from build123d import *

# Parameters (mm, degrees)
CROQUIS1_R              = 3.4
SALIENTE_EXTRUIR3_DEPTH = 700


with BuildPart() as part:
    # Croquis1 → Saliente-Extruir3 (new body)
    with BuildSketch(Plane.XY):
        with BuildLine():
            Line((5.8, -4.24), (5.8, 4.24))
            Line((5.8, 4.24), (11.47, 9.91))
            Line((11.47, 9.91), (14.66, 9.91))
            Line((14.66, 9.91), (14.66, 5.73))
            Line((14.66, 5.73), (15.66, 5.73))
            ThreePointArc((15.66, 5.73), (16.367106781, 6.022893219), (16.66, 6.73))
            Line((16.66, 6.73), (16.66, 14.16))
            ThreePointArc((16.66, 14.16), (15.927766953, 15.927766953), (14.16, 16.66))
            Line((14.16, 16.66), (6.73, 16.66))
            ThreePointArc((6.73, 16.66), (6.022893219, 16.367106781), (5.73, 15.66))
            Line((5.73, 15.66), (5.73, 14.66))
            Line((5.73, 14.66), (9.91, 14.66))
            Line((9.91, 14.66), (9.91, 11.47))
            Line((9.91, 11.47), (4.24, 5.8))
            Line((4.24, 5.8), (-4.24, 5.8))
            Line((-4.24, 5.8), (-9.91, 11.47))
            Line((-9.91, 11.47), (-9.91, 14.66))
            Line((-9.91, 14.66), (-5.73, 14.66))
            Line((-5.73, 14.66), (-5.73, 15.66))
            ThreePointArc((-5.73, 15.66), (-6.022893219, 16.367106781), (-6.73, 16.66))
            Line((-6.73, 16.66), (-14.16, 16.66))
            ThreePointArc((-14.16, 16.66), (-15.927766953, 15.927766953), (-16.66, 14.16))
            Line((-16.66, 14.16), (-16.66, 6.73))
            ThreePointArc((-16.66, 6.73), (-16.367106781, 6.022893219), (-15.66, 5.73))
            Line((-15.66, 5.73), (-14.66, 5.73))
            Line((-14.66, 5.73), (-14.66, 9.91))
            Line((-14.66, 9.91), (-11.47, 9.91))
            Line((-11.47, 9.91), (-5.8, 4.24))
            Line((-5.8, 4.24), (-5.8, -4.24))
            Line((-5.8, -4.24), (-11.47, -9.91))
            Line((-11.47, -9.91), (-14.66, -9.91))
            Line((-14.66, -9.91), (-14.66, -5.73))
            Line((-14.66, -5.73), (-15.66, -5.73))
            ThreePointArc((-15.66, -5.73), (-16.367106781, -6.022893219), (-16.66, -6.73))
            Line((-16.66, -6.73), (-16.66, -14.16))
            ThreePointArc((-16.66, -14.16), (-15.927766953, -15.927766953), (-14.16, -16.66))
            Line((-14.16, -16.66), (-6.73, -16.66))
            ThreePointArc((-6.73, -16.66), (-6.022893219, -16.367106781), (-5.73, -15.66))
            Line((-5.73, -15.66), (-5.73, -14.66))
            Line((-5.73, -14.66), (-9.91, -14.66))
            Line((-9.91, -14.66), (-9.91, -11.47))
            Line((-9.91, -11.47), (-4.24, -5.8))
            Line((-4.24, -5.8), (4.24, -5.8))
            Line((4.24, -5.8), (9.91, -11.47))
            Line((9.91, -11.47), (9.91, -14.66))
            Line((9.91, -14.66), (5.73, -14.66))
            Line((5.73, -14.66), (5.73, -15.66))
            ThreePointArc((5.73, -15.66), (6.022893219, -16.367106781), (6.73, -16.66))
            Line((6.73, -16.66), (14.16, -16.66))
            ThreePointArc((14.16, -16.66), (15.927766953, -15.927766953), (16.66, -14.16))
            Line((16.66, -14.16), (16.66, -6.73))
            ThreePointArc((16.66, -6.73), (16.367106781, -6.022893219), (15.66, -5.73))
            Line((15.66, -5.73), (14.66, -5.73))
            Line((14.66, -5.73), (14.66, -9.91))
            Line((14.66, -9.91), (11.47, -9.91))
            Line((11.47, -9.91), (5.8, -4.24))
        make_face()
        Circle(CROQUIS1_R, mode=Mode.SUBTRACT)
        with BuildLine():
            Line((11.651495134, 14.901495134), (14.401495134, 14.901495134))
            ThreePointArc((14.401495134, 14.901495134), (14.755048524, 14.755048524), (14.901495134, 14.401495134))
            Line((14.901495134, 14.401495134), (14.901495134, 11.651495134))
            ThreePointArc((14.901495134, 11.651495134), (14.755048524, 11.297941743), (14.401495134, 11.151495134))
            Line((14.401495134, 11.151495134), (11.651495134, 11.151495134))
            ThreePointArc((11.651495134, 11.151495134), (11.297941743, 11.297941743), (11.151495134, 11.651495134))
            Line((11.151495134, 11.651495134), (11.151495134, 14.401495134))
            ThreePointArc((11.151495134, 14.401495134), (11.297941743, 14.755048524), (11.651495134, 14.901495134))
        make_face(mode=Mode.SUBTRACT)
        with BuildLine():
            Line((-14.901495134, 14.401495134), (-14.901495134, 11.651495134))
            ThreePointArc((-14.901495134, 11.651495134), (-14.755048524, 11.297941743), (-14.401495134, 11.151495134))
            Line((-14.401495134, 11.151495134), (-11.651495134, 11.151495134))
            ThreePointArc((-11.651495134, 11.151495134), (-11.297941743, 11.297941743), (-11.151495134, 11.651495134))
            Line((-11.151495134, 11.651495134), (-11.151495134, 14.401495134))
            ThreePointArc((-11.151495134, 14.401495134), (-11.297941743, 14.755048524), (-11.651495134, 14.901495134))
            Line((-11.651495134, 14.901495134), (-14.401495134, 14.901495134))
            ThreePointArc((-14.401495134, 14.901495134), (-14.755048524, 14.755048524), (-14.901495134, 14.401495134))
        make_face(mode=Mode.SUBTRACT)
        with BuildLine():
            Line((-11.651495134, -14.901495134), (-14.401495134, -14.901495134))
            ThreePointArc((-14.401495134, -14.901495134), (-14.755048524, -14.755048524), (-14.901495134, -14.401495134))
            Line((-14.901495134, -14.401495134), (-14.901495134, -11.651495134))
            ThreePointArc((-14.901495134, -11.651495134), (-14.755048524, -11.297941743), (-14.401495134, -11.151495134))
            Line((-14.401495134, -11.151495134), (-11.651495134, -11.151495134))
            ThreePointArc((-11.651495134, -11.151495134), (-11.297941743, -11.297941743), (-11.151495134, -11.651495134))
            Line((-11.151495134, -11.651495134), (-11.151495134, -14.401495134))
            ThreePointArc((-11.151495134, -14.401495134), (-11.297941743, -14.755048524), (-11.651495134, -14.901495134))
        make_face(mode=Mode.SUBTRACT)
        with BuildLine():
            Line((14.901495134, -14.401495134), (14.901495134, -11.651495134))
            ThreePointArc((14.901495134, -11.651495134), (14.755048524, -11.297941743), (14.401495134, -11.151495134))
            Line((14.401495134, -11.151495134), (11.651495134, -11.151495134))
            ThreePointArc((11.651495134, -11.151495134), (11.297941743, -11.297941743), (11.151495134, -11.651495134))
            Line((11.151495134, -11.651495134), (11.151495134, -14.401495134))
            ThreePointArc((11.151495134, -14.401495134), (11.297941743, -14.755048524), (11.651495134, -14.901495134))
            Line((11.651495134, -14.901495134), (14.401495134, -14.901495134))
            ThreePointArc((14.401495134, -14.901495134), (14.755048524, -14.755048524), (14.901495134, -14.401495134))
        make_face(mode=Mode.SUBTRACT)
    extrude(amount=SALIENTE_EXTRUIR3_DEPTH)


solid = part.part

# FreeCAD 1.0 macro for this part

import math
import FreeCAD as App
import Part
import Sketcher
Q = App.Units.Quantity

doc = App.newDocument("Part")
params = doc.addObject("Spreadsheet::Sheet", "Params")
for row, (alias, value) in enumerate([
    ("sketch1_radius", "1 mm"),
    ("sketch1_diameter", "6.8 mm"),
    ("sketch1_radius2", "2.5 mm"),
    ("sketch1_radius3", "0.5 mm"),
    ("sketch1_width", "1 mm"),
    ("pad1_length", "700 mm"),
], start=1):
    params.set(f"A{row}", alias)
    params.set(f"B{row}", "=" + value)
    params.setAlias(f"B{row}", alias)

body = doc.addObject("PartDesign::Body", "Body")

# Sketch on XY plane
sketch1 = body.newObject("Sketcher::SketchObject", "Sketch")
sketch1.AttachmentSupport = (doc.getObject("XY_Plane"), [""])
sketch1.MapMode = "FlatFace"
sketch1.addGeometry([
    Part.LineSegment(App.Vector(5.8, -4.24, 0), App.Vector(5.8, 4.24, 0)),  # 0
    Part.LineSegment(App.Vector(5.8, 4.24, 0), App.Vector(11.47, 9.91, 0)),  # 1
    Part.LineSegment(App.Vector(11.47, 9.91, 0), App.Vector(14.66, 9.91, 0)),  # 2
    Part.LineSegment(App.Vector(14.66, 9.91, 0), App.Vector(14.66, 5.73, 0)),  # 3
    Part.LineSegment(App.Vector(14.66, 5.73, 0), App.Vector(15.66, 5.73, 0)),  # 4
    Part.ArcOfCircle(Part.Circle(App.Vector(15.66, 6.73, 0), App.Vector(0, 0, 1), 1), math.radians(-90), math.radians(0)),  # 5
    Part.LineSegment(App.Vector(16.66, 6.73, 0), App.Vector(16.66, 14.16, 0)),  # 6
    Part.ArcOfCircle(Part.Circle(App.Vector(14.16, 14.16, 0), App.Vector(0, 0, 1), 2.5), math.radians(0), math.radians(90)),  # 7
    Part.LineSegment(App.Vector(14.16, 16.66, 0), App.Vector(6.73, 16.66, 0)),  # 8
    Part.ArcOfCircle(Part.Circle(App.Vector(6.73, 15.66, 0), App.Vector(0, 0, 1), 1), math.radians(90), math.radians(180)),  # 9
    Part.LineSegment(App.Vector(5.73, 15.66, 0), App.Vector(5.73, 14.66, 0)),  # 10
    Part.LineSegment(App.Vector(5.73, 14.66, 0), App.Vector(9.91, 14.66, 0)),  # 11
    Part.LineSegment(App.Vector(9.91, 14.66, 0), App.Vector(9.91, 11.47, 0)),  # 12
    Part.LineSegment(App.Vector(9.91, 11.47, 0), App.Vector(4.24, 5.8, 0)),  # 13
    Part.LineSegment(App.Vector(4.24, 5.8, 0), App.Vector(-4.24, 5.8, 0)),  # 14
    Part.LineSegment(App.Vector(-4.24, 5.8, 0), App.Vector(-9.91, 11.47, 0)),  # 15
    Part.LineSegment(App.Vector(-9.91, 11.47, 0), App.Vector(-9.91, 14.66, 0)),  # 16
    Part.LineSegment(App.Vector(-9.91, 14.66, 0), App.Vector(-5.73, 14.66, 0)),  # 17
    Part.LineSegment(App.Vector(-5.73, 14.66, 0), App.Vector(-5.73, 15.66, 0)),  # 18
    Part.ArcOfCircle(Part.Circle(App.Vector(-6.73, 15.66, 0), App.Vector(0, 0, 1), 1), math.radians(0), math.radians(90)),  # 19
    Part.LineSegment(App.Vector(-6.73, 16.66, 0), App.Vector(-14.16, 16.66, 0)),  # 20
    Part.ArcOfCircle(Part.Circle(App.Vector(-14.16, 14.16, 0), App.Vector(0, 0, 1), 2.5), math.radians(90), math.radians(180)),  # 21
    Part.LineSegment(App.Vector(-16.66, 14.16, 0), App.Vector(-16.66, 6.73, 0)),  # 22
    Part.ArcOfCircle(Part.Circle(App.Vector(-15.66, 6.73, 0), App.Vector(0, 0, 1), 1), math.radians(-180), math.radians(-90)),  # 23
    Part.LineSegment(App.Vector(-15.66, 5.73, 0), App.Vector(-14.66, 5.73, 0)),  # 24
    Part.LineSegment(App.Vector(-14.66, 5.73, 0), App.Vector(-14.66, 9.91, 0)),  # 25
    Part.LineSegment(App.Vector(-14.66, 9.91, 0), App.Vector(-11.47, 9.91, 0)),  # 26
    Part.LineSegment(App.Vector(-11.47, 9.91, 0), App.Vector(-5.8, 4.24, 0)),  # 27
    Part.LineSegment(App.Vector(-5.8, 4.24, 0), App.Vector(-5.8, -4.24, 0)),  # 28
    Part.LineSegment(App.Vector(-5.8, -4.24, 0), App.Vector(-11.47, -9.91, 0)),  # 29
    Part.LineSegment(App.Vector(-11.47, -9.91, 0), App.Vector(-14.66, -9.91, 0)),  # 30
    Part.LineSegment(App.Vector(-14.66, -9.91, 0), App.Vector(-14.66, -5.73, 0)),  # 31
    Part.LineSegment(App.Vector(-14.66, -5.73, 0), App.Vector(-15.66, -5.73, 0)),  # 32
    Part.ArcOfCircle(Part.Circle(App.Vector(-15.66, -6.73, 0), App.Vector(0, 0, 1), 1), math.radians(90), math.radians(180)),  # 33
    Part.LineSegment(App.Vector(-16.66, -6.73, 0), App.Vector(-16.66, -14.16, 0)),  # 34
    Part.ArcOfCircle(Part.Circle(App.Vector(-14.16, -14.16, 0), App.Vector(0, 0, 1), 2.5), math.radians(180), math.radians(270)),  # 35
    Part.LineSegment(App.Vector(-14.16, -16.66, 0), App.Vector(-6.73, -16.66, 0)),  # 36
    Part.ArcOfCircle(Part.Circle(App.Vector(-6.73, -15.66, 0), App.Vector(0, 0, 1), 1), math.radians(-90), math.radians(0)),  # 37
    Part.LineSegment(App.Vector(-5.73, -15.66, 0), App.Vector(-5.73, -14.66, 0)),  # 38
    Part.LineSegment(App.Vector(-5.73, -14.66, 0), App.Vector(-9.91, -14.66, 0)),  # 39
    Part.LineSegment(App.Vector(-9.91, -14.66, 0), App.Vector(-9.91, -11.47, 0)),  # 40
    Part.LineSegment(App.Vector(-9.91, -11.47, 0), App.Vector(-4.24, -5.8, 0)),  # 41
    Part.LineSegment(App.Vector(-4.24, -5.8, 0), App.Vector(4.24, -5.8, 0)),  # 42
    Part.LineSegment(App.Vector(4.24, -5.8, 0), App.Vector(9.91, -11.47, 0)),  # 43
    Part.LineSegment(App.Vector(9.91, -11.47, 0), App.Vector(9.91, -14.66, 0)),  # 44
    Part.LineSegment(App.Vector(9.91, -14.66, 0), App.Vector(5.73, -14.66, 0)),  # 45
    Part.LineSegment(App.Vector(5.73, -14.66, 0), App.Vector(5.73, -15.66, 0)),  # 46
    Part.ArcOfCircle(Part.Circle(App.Vector(6.73, -15.66, 0), App.Vector(0, 0, 1), 1), math.radians(-180), math.radians(-90)),  # 47
    Part.LineSegment(App.Vector(6.73, -16.66, 0), App.Vector(14.16, -16.66, 0)),  # 48
    Part.ArcOfCircle(Part.Circle(App.Vector(14.16, -14.16, 0), App.Vector(0, 0, 1), 2.5), math.radians(-90), math.radians(0)),  # 49
    Part.LineSegment(App.Vector(16.66, -14.16, 0), App.Vector(16.66, -6.73, 0)),  # 50
    Part.ArcOfCircle(Part.Circle(App.Vector(15.66, -6.73, 0), App.Vector(0, 0, 1), 1), math.radians(0), math.radians(90)),  # 51
    Part.LineSegment(App.Vector(15.66, -5.73, 0), App.Vector(14.66, -5.73, 0)),  # 52
    Part.LineSegment(App.Vector(14.66, -5.73, 0), App.Vector(14.66, -9.91, 0)),  # 53
    Part.LineSegment(App.Vector(14.66, -9.91, 0), App.Vector(11.47, -9.91, 0)),  # 54
    Part.LineSegment(App.Vector(11.47, -9.91, 0), App.Vector(5.8, -4.24, 0)),  # 55
    Part.ArcOfCircle(Part.Circle(App.Vector(-11.651495, -14.401495, 0), App.Vector(0, 0, 1), 0.5), math.radians(-90), math.radians(0)),  # 56
    Part.LineSegment(App.Vector(-11.651495, -14.901495, 0), App.Vector(-14.401495, -14.901495, 0)),  # 57
    Part.ArcOfCircle(Part.Circle(App.Vector(-14.401495, -14.401495, 0), App.Vector(0, 0, 1), 0.5), math.radians(-180), math.radians(-90)),  # 58
    Part.LineSegment(App.Vector(-14.901495, -14.401495, 0), App.Vector(-14.901495, -11.651495, 0)),  # 59
    Part.ArcOfCircle(Part.Circle(App.Vector(-14.401495, -11.651495, 0), App.Vector(0, 0, 1), 0.5), math.radians(90), math.radians(180)),  # 60
    Part.LineSegment(App.Vector(-14.401495, -11.151495, 0), App.Vector(-11.651495, -11.151495, 0)),  # 61
    Part.ArcOfCircle(Part.Circle(App.Vector(-11.651495, -11.651495, 0), App.Vector(0, 0, 1), 0.5), math.radians(0), math.radians(90)),  # 62
    Part.LineSegment(App.Vector(-11.151495, -11.651495, 0), App.Vector(-11.151495, -14.401495, 0)),  # 63
    Part.Circle(App.Vector(0, 0, 0), App.Vector(0, 0, 1), 3.4),  # 64
    Part.LineSegment(App.Vector(14.901495, -11.651495, 0), App.Vector(14.901495, -14.401495, 0)),  # 65
    Part.ArcOfCircle(Part.Circle(App.Vector(14.401495, -14.401495, 0), App.Vector(0, 0, 1), 0.5), math.radians(-90), math.radians(0)),  # 66
    Part.LineSegment(App.Vector(14.401495, -14.901495, 0), App.Vector(11.651495, -14.901495, 0)),  # 67
    Part.ArcOfCircle(Part.Circle(App.Vector(11.651495, -14.401495, 0), App.Vector(0, 0, 1), 0.5), math.radians(180), math.radians(270)),  # 68
    Part.LineSegment(App.Vector(11.151495, -14.401495, 0), App.Vector(11.151495, -11.651495, 0)),  # 69
    Part.ArcOfCircle(Part.Circle(App.Vector(11.651495, -11.651495, 0), App.Vector(0, 0, 1), 0.5), math.radians(90), math.radians(180)),  # 70
    Part.LineSegment(App.Vector(11.651495, -11.151495, 0), App.Vector(14.401495, -11.151495, 0)),  # 71
    Part.ArcOfCircle(Part.Circle(App.Vector(14.401495, -11.651495, 0), App.Vector(0, 0, 1), 0.5), math.radians(0), math.radians(90)),  # 72
    Part.LineSegment(App.Vector(-14.901495, 11.651495, 0), App.Vector(-14.901495, 14.401495, 0)),  # 73
    Part.ArcOfCircle(Part.Circle(App.Vector(-14.401495, 14.401495, 0), App.Vector(0, 0, 1), 0.5), math.radians(90), math.radians(180)),  # 74
    Part.LineSegment(App.Vector(-14.401495, 14.901495, 0), App.Vector(-11.651495, 14.901495, 0)),  # 75
    Part.ArcOfCircle(Part.Circle(App.Vector(-11.651495, 14.401495, 0), App.Vector(0, 0, 1), 0.5), math.radians(0), math.radians(90)),  # 76
    Part.LineSegment(App.Vector(-11.151495, 14.401495, 0), App.Vector(-11.151495, 11.651495, 0)),  # 77
    Part.ArcOfCircle(Part.Circle(App.Vector(-11.651495, 11.651495, 0), App.Vector(0, 0, 1), 0.5), math.radians(-90), math.radians(0)),  # 78
    Part.LineSegment(App.Vector(-11.651495, 11.151495, 0), App.Vector(-14.401495, 11.151495, 0)),  # 79
    Part.ArcOfCircle(Part.Circle(App.Vector(-14.401495, 11.651495, 0), App.Vector(0, 0, 1), 0.5), math.radians(180), math.radians(270)),  # 80
    Part.ArcOfCircle(Part.Circle(App.Vector(11.651495, 14.401495, 0), App.Vector(0, 0, 1), 0.5), math.radians(90), math.radians(180)),  # 81
    Part.LineSegment(App.Vector(11.651495, 14.901495, 0), App.Vector(14.401495, 14.901495, 0)),  # 82
    Part.ArcOfCircle(Part.Circle(App.Vector(14.401495, 14.401495, 0), App.Vector(0, 0, 1), 0.5), math.radians(0), math.radians(90)),  # 83
    Part.LineSegment(App.Vector(14.901495, 14.401495, 0), App.Vector(14.901495, 11.651495, 0)),  # 84
    Part.ArcOfCircle(Part.Circle(App.Vector(14.401495, 11.651495, 0), App.Vector(0, 0, 1), 0.5), math.radians(-90), math.radians(0)),  # 85
    Part.LineSegment(App.Vector(14.401495, 11.151495, 0), App.Vector(11.651495, 11.151495, 0)),  # 86
    Part.ArcOfCircle(Part.Circle(App.Vector(11.651495, 11.651495, 0), App.Vector(0, 0, 1), 0.5), math.radians(180), math.radians(270)),  # 87
    Part.LineSegment(App.Vector(11.151495, 11.651495, 0), App.Vector(11.151495, 14.401495, 0)),  # 88
], False)
sketch1.addConstraint([
    Sketcher.Constraint("Coincident", 0, 2, 1, 1),
    Sketcher.Constraint("Coincident", 1, 2, 2, 1),
    Sketcher.Constraint("Coincident", 2, 2, 3, 1),
    Sketcher.Constraint("Coincident", 3, 2, 4, 1),
    Sketcher.Constraint("Tangent", 4, 2, 5, 1),
    Sketcher.Constraint("Tangent", 5, 2, 6, 1),
    Sketcher.Constraint("Tangent", 6, 2, 7, 1),
    Sketcher.Constraint("Tangent", 7, 2, 8, 1),
    Sketcher.Constraint("Tangent", 8, 2, 9, 1),
    Sketcher.Constraint("Tangent", 9, 2, 10, 1),
    Sketcher.Constraint("Coincident", 10, 2, 11, 1),
    Sketcher.Constraint("Coincident", 11, 2, 12, 1),
    Sketcher.Constraint("Coincident", 12, 2, 13, 1),
    Sketcher.Constraint("Coincident", 13, 2, 14, 1),
    Sketcher.Constraint("Coincident", 14, 2, 15, 1),
    Sketcher.Constraint("Coincident", 15, 2, 16, 1),
    Sketcher.Constraint("Coincident", 16, 2, 17, 1),
    Sketcher.Constraint("Coincident", 17, 2, 18, 1),
    Sketcher.Constraint("Tangent", 18, 2, 19, 1),
    Sketcher.Constraint("Tangent", 19, 2, 20, 1),
    Sketcher.Constraint("Tangent", 20, 2, 21, 1),
    Sketcher.Constraint("Tangent", 21, 2, 22, 1),
    Sketcher.Constraint("Tangent", 22, 2, 23, 1),
    Sketcher.Constraint("Tangent", 23, 2, 24, 1),
    Sketcher.Constraint("Coincident", 24, 2, 25, 1),
    Sketcher.Constraint("Coincident", 25, 2, 26, 1),
    Sketcher.Constraint("Coincident", 26, 2, 27, 1),
    Sketcher.Constraint("Coincident", 27, 2, 28, 1),
    Sketcher.Constraint("Coincident", 28, 2, 29, 1),
    Sketcher.Constraint("Coincident", 29, 2, 30, 1),
    Sketcher.Constraint("Coincident", 30, 2, 31, 1),
    Sketcher.Constraint("Coincident", 31, 2, 32, 1),
    Sketcher.Constraint("Tangent", 32, 2, 33, 1),
    Sketcher.Constraint("Tangent", 33, 2, 34, 1),
    Sketcher.Constraint("Tangent", 34, 2, 35, 1),
    Sketcher.Constraint("Tangent", 35, 2, 36, 1),
    Sketcher.Constraint("Tangent", 36, 2, 37, 1),
    Sketcher.Constraint("Tangent", 37, 2, 38, 1),
    Sketcher.Constraint("Coincident", 38, 2, 39, 1),
    Sketcher.Constraint("Coincident", 39, 2, 40, 1),
    Sketcher.Constraint("Coincident", 40, 2, 41, 1),
    Sketcher.Constraint("Coincident", 41, 2, 42, 1),
    Sketcher.Constraint("Coincident", 42, 2, 43, 1),
    Sketcher.Constraint("Coincident", 43, 2, 44, 1),
    Sketcher.Constraint("Coincident", 44, 2, 45, 1),
    Sketcher.Constraint("Coincident", 45, 2, 46, 1),
    Sketcher.Constraint("Tangent", 46, 2, 47, 1),
    Sketcher.Constraint("Tangent", 47, 2, 48, 1),
    Sketcher.Constraint("Tangent", 48, 2, 49, 1),
    Sketcher.Constraint("Tangent", 49, 2, 50, 1),
    Sketcher.Constraint("Tangent", 50, 2, 51, 1),
    Sketcher.Constraint("Tangent", 51, 2, 52, 1),
    Sketcher.Constraint("Coincident", 52, 2, 53, 1),
    Sketcher.Constraint("Coincident", 53, 2, 54, 1),
    Sketcher.Constraint("Coincident", 54, 2, 55, 1),
    Sketcher.Constraint("Coincident", 55, 2, 0, 1),
    Sketcher.Constraint("Tangent", 56, 1, 57, 1),
    Sketcher.Constraint("Tangent", 57, 2, 58, 2),
    Sketcher.Constraint("Tangent", 58, 1, 59, 1),
    Sketcher.Constraint("Tangent", 59, 2, 60, 2),
    Sketcher.Constraint("Tangent", 60, 1, 61, 1),
    Sketcher.Constraint("Tangent", 61, 2, 62, 2),
    Sketcher.Constraint("Tangent", 62, 1, 63, 1),
    Sketcher.Constraint("Tangent", 63, 2, 56, 2),
    Sketcher.Constraint("Tangent", 65, 2, 66, 2),
    Sketcher.Constraint("Tangent", 66, 1, 67, 1),
    Sketcher.Constraint("Tangent", 67, 2, 68, 2),
    Sketcher.Constraint("Tangent", 68, 1, 69, 1),
    Sketcher.Constraint("Tangent", 69, 2, 70, 2),
    Sketcher.Constraint("Tangent", 70, 1, 71, 1),
    Sketcher.Constraint("Tangent", 71, 2, 72, 2),
    Sketcher.Constraint("Tangent", 72, 1, 65, 1),
    Sketcher.Constraint("Tangent", 73, 2, 74, 2),
    Sketcher.Constraint("Tangent", 74, 1, 75, 1),
    Sketcher.Constraint("Tangent", 75, 2, 76, 2),
    Sketcher.Constraint("Tangent", 76, 1, 77, 1),
    Sketcher.Constraint("Tangent", 77, 2, 78, 2),
    Sketcher.Constraint("Tangent", 78, 1, 79, 1),
    Sketcher.Constraint("Tangent", 79, 2, 80, 2),
    Sketcher.Constraint("Tangent", 80, 1, 73, 1),
    Sketcher.Constraint("Tangent", 81, 1, 82, 1),
    Sketcher.Constraint("Tangent", 82, 2, 83, 2),
    Sketcher.Constraint("Tangent", 83, 1, 84, 1),
    Sketcher.Constraint("Tangent", 84, 2, 85, 2),
    Sketcher.Constraint("Tangent", 85, 1, 86, 1),
    Sketcher.Constraint("Tangent", 86, 2, 87, 2),
    Sketcher.Constraint("Tangent", 87, 1, 88, 1),
    Sketcher.Constraint("Tangent", 88, 2, 81, 2),
    Sketcher.Constraint("Vertical", 0),
    Sketcher.Constraint("Horizontal", 2),
    Sketcher.Constraint("Vertical", 3),
    Sketcher.Constraint("Horizontal", 4),
    Sketcher.Constraint("Vertical", 6),
    Sketcher.Constraint("Horizontal", 8),
    Sketcher.Constraint("Vertical", 10),
    Sketcher.Constraint("Horizontal", 11),
    Sketcher.Constraint("Vertical", 12),
    Sketcher.Constraint("Horizontal", 14),
    Sketcher.Constraint("Vertical", 16),
    Sketcher.Constraint("Horizontal", 17),
    Sketcher.Constraint("Vertical", 18),
    Sketcher.Constraint("Horizontal", 20),
    Sketcher.Constraint("Vertical", 22),
    Sketcher.Constraint("Horizontal", 24),
    Sketcher.Constraint("Vertical", 25),
    Sketcher.Constraint("Horizontal", 26),
    Sketcher.Constraint("Vertical", 28),
    Sketcher.Constraint("Horizontal", 30),
    Sketcher.Constraint("Vertical", 31),
    Sketcher.Constraint("Horizontal", 32),
    Sketcher.Constraint("Vertical", 34),
    Sketcher.Constraint("Horizontal", 36),
    Sketcher.Constraint("Vertical", 38),
    Sketcher.Constraint("Horizontal", 39),
    Sketcher.Constraint("Vertical", 40),
    Sketcher.Constraint("Horizontal", 42),
    Sketcher.Constraint("Vertical", 44),
    Sketcher.Constraint("Horizontal", 45),
    Sketcher.Constraint("Vertical", 46),
    Sketcher.Constraint("Horizontal", 48),
    Sketcher.Constraint("Vertical", 50),
    Sketcher.Constraint("Horizontal", 52),
    Sketcher.Constraint("Vertical", 53),
    Sketcher.Constraint("Horizontal", 54),
    Sketcher.Constraint("Horizontal", 57),
    Sketcher.Constraint("Vertical", 59),
    Sketcher.Constraint("Horizontal", 61),
    Sketcher.Constraint("Vertical", 63),
    Sketcher.Constraint("Vertical", 65),
    Sketcher.Constraint("Horizontal", 67),
    Sketcher.Constraint("Vertical", 69),
    Sketcher.Constraint("Horizontal", 71),
    Sketcher.Constraint("Vertical", 73),
    Sketcher.Constraint("Horizontal", 75),
    Sketcher.Constraint("Vertical", 77),
    Sketcher.Constraint("Horizontal", 79),
    Sketcher.Constraint("Horizontal", 82),
    Sketcher.Constraint("Vertical", 84),
    Sketcher.Constraint("Horizontal", 86),
    Sketcher.Constraint("Vertical", 88),
    Sketcher.Constraint("Coincident", 64, 3, -1, 1),
    Sketcher.Constraint("Equal", 5, 9),
    Sketcher.Constraint("Equal", 9, 19),
    Sketcher.Constraint("Equal", 7, 21),
    Sketcher.Constraint("Equal", 19, 23),
    Sketcher.Constraint("Equal", 23, 33),
    Sketcher.Constraint("Equal", 21, 35),
    Sketcher.Constraint("Equal", 33, 37),
    Sketcher.Constraint("Equal", 37, 47),
    Sketcher.Constraint("Equal", 35, 49),
    Sketcher.Constraint("Equal", 47, 51),
    Sketcher.Constraint("Equal", 56, 58),
    Sketcher.Constraint("Equal", 58, 60),
    Sketcher.Constraint("Equal", 60, 62),
    Sketcher.Constraint("Equal", 62, 66),
    Sketcher.Constraint("Equal", 66, 68),
    Sketcher.Constraint("Equal", 68, 70),
    Sketcher.Constraint("Equal", 70, 72),
    Sketcher.Constraint("Equal", 72, 74),
    Sketcher.Constraint("Equal", 74, 76),
    Sketcher.Constraint("Equal", 76, 78),
    Sketcher.Constraint("Equal", 78, 80),
    Sketcher.Constraint("Equal", 80, 81),
    Sketcher.Constraint("Equal", 81, 83),
    Sketcher.Constraint("Equal", 83, 85),
    Sketcher.Constraint("Equal", 85, 87),
    Sketcher.Constraint("Symmetric", 5, 3, 33, 3, -1, 1),
    Sketcher.Constraint("Symmetric", 9, 3, 37, 3, -1, 1),
    Sketcher.Constraint("Symmetric", 19, 3, 47, 3, -1, 1),
    Sketcher.Constraint("Symmetric", 23, 3, 51, 3, -1, 1),
    Sketcher.Constraint("Symmetric", 66, 3, 74, 3, -1, 1),
    Sketcher.Constraint("Symmetric", 70, 3, 78, 3, -1, 1),
    Sketcher.Constraint("Symmetric", 56, 3, 81, 3, -1, 1),
    Sketcher.Constraint("Symmetric", 60, 3, 85, 3, -1, 1),
    Sketcher.Constraint("Symmetric", 0, 2, 28, 2, -1, 1),
    Sketcher.Constraint("Symmetric", 1, 2, 29, 2, -1, 1),
    Sketcher.Constraint("Symmetric", 11, 2, 39, 2, -1, 1),
    Sketcher.Constraint("Symmetric", 13, 2, 41, 2, -1, 1),
    Sketcher.Constraint("Symmetric", 15, 2, 43, 2, -1, 1),
    Sketcher.Constraint("Symmetric", 25, 2, 53, 2, -1, 1),
    Sketcher.Constraint("Symmetric", 9, 3, 19, 3, -2),
    Sketcher.Constraint("Symmetric", 5, 3, 23, 3, -2),
    Sketcher.Constraint("Symmetric", 58, 3, 66, 3, -2),
    Sketcher.Constraint("Symmetric", 62, 3, 70, 3, -2),
    Sketcher.Constraint("Symmetric", 12, 2, 15, 2, -2),
    Sketcher.Constraint("Symmetric", 2, 2, 25, 2, -2),
    Sketcher.Constraint("Parallel", 1, 13),
    Sketcher.Constraint("Perpendicular", 13, 15),
    Sketcher.Constraint("Parallel", 15, 27),
    Sketcher.Constraint("Parallel", 29, 41),
    Sketcher.Constraint("Perpendicular", 41, 43),
    Sketcher.Constraint("Parallel", 43, 55),
    Sketcher.Constraint("Horizontal", 11, 2, 16, 2),
    Sketcher.Constraint("Horizontal", 0, 2, 27, 2),
    Sketcher.Constraint("Horizontal", 39, 2, 44, 2),
    Sketcher.Constraint("Horizontal", 28, 2, 55, 2),
    Sketcher.Constraint("Vertical", 26, 2, 29, 2),
    Sketcher.Constraint("Vertical", 25, 2, 30, 2),
    Sketcher.Constraint("Equal", 42, 0),
    Sketcher.Constraint("Equal", 45, 3),
    Sketcher.Constraint("Equal", 48, 6),
    Sketcher.Constraint("Equal", 52, 10),
    Sketcher.Constraint("Equal", 54, 12),
    Sketcher.Constraint("Equal", 86, 59),
    Sketcher.Constraint("Equal", 1, 13),
    Sketcher.Constraint("Radius", 5, Q("1 mm")),
    Sketcher.Constraint("Diameter", 64, Q("6.8 mm")),
    Sketcher.Constraint("Radius", 7, Q("2.5 mm")),
    Sketcher.Constraint("Radius", 56, Q("0.5 mm")),
    Sketcher.Constraint("DistanceX", 4, 1, 4, 2, Q("1 mm")),
    Sketcher.Constraint("DistanceX", 2, 1, 2, 2, Q("3.19 mm")),
    Sketcher.Constraint("DistanceX", 8, 2, 8, 1, Q("7.43 mm")),
    Sketcher.Constraint("DistanceX", 11, 1, 11, 2, Q("4.18 mm")),
    Sketcher.Constraint("DistanceX", 14, 2, 14, 1, Q("8.48 mm")),
    Sketcher.Constraint("DistanceX", 57, 2, 57, 1, Q("2.75 mm")),
    Sketcher.Constraint("DistanceX", -1, 1, 5, 3, Q("15.66 mm")),
    Sketcher.Constraint("DistanceX", 56, 3, -1, 1, Q("11.651495 mm")),
    Sketcher.Constraint("DistanceY", 56, 3, -1, 1, Q("14.401495 mm")),
])
sketch1.setExpression("Constraints[205]", "Params.sketch1_radius")
sketch1.setExpression("Constraints[206]", "Params.sketch1_diameter")
sketch1.setExpression("Constraints[207]", "Params.sketch1_radius2")
sketch1.setExpression("Constraints[208]", "Params.sketch1_radius3")
sketch1.setExpression("Constraints[209]", "Params.sketch1_width")
pad1 = body.newObject("PartDesign::Pad", "Pad")
pad1.Profile = sketch1
pad1.setExpression("Length", "Params.pad1_length")

doc.recompute()
